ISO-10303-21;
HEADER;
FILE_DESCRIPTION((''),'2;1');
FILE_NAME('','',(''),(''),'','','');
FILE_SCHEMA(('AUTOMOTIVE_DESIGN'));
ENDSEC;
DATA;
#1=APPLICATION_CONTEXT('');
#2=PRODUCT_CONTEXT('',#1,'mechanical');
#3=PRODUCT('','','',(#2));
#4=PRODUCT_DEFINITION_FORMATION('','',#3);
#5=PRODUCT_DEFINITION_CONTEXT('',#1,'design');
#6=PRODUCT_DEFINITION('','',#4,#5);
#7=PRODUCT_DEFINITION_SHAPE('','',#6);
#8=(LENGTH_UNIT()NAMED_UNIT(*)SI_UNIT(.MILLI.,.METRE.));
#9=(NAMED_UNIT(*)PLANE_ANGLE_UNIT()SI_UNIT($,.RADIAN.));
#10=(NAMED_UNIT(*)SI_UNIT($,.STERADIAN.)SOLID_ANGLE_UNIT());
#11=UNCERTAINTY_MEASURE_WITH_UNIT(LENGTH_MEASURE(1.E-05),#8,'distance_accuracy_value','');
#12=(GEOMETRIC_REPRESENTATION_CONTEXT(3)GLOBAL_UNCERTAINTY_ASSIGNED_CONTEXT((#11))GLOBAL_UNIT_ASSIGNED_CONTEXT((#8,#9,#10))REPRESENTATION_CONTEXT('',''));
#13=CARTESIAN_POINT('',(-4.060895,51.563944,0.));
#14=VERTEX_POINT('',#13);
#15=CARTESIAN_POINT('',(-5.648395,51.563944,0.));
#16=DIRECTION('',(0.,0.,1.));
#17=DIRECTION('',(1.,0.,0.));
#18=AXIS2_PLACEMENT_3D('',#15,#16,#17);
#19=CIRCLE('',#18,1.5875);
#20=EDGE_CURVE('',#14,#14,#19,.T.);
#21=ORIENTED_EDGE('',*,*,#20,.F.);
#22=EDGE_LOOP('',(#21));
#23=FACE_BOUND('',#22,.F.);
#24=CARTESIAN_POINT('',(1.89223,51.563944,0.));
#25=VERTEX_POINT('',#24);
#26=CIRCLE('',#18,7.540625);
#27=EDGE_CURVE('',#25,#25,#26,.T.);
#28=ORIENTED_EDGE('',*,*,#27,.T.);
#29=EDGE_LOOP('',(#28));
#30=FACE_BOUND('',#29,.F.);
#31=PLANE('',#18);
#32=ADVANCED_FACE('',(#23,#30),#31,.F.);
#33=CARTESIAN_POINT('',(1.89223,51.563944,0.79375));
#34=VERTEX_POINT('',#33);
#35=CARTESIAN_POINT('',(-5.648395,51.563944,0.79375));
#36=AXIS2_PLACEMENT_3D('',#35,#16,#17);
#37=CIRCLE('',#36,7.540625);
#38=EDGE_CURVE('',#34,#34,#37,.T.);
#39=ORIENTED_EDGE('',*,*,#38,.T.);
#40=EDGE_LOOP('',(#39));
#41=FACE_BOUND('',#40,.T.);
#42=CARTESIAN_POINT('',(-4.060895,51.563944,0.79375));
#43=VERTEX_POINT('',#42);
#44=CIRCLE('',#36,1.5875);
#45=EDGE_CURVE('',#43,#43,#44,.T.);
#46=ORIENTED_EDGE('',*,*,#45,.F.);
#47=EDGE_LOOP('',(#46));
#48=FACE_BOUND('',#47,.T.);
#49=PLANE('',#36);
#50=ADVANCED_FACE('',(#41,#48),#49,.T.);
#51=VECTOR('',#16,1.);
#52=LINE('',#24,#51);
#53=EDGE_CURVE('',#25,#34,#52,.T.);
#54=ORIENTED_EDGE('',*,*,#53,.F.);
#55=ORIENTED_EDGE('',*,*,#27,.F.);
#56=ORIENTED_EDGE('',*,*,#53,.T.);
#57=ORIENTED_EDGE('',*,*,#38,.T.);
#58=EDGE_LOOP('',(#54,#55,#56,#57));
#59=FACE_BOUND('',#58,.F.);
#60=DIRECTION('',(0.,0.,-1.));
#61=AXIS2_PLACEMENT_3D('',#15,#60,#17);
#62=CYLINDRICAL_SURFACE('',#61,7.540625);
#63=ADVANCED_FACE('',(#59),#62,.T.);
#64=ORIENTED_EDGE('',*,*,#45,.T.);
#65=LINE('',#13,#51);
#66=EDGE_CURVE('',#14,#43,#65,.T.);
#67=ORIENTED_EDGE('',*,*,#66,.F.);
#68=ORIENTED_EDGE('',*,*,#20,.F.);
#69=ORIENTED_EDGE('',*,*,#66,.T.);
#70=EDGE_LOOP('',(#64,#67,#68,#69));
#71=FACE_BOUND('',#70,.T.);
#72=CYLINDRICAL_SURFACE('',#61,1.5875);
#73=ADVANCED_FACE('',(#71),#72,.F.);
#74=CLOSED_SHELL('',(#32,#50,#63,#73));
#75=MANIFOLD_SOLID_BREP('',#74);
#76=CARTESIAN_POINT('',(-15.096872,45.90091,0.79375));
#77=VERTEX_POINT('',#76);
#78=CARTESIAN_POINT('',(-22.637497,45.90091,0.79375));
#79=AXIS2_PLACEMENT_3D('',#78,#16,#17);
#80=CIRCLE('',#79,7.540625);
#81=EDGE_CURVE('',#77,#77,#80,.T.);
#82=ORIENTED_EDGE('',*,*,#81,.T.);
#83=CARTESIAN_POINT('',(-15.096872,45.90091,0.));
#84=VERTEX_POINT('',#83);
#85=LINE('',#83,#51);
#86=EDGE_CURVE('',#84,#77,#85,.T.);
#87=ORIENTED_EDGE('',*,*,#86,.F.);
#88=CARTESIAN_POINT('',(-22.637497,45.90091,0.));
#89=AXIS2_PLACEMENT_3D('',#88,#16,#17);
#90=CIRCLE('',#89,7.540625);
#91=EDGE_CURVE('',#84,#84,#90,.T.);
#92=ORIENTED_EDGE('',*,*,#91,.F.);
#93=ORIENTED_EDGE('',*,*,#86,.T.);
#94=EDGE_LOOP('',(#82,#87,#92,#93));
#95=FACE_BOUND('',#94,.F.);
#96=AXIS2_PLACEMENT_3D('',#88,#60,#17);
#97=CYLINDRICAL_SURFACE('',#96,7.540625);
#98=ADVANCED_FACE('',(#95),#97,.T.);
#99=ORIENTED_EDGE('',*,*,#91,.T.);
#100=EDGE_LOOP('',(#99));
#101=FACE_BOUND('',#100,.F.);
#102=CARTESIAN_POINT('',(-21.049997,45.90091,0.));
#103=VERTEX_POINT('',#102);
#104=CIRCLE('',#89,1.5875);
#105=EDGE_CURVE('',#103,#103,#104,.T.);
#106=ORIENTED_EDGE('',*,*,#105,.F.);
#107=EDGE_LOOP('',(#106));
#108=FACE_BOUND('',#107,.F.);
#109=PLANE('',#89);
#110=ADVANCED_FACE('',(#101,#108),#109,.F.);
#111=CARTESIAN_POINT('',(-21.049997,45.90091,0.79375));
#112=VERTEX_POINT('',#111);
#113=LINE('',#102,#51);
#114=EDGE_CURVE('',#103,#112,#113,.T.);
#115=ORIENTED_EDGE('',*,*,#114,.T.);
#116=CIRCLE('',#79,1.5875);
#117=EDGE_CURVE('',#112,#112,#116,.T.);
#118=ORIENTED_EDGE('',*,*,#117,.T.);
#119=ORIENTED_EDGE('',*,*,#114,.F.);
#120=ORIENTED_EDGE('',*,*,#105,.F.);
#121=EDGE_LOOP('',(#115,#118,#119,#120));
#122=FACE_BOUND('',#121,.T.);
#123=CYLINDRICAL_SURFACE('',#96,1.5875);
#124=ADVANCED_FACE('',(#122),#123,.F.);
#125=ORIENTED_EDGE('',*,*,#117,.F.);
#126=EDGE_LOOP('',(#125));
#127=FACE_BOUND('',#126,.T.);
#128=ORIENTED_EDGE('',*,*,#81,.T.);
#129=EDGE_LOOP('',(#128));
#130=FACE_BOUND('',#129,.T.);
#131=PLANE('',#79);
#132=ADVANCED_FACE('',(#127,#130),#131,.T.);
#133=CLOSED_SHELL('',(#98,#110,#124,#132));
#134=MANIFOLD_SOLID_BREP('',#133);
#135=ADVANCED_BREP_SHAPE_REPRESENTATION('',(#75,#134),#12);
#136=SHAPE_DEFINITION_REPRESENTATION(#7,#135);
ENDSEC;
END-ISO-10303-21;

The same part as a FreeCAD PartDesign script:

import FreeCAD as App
import Part
import Sketcher

V = App.Vector
Q = App.Units.Quantity

doc = App.newDocument("Part")
body = doc.addObject("PartDesign::Body", "Body")
body.AllowCompound = True

# Sketch on XY plane
sketch1 = body.newObject("Sketcher::SketchObject", "Sketch")
sketch1.AttachmentSupport = (doc.getObject("XY_Plane"), [""])
sketch1.MapMode = "FlatFace"
sketch1.addGeometry(Part.Circle(V(-22.637497, 45.90091, 0), V(0, 0, 1), 7.540625), False)
sketch1.addGeometry(Part.Circle(V(-22.637497, 45.90091, 0), V(0, 0, 1), 1.5875), False)
sketch1.addGeometry(Part.Circle(V(-5.648395, 51.563944, 0), V(0, 0, 1), 7.540625), False)
sketch1.addGeometry(Part.Circle(V(-5.648395, 51.563944, 0), V(0, 0, 1), 1.5875), False)
sketch1.addConstraint(Sketcher.Constraint("Coincident", 1, 3, 0, 3))
sketch1.addConstraint(Sketcher.Constraint("Coincident", 3, 3, 2, 3))
sketch1.addConstraint(Sketcher.Constraint("Equal", 0, 2))
sketch1.addConstraint(Sketcher.Constraint("Equal", 1, 3))
sketch1.addConstraint(Sketcher.Constraint("Diameter", 0, Q("0.59375 in")))
sketch1.addConstraint(Sketcher.Constraint("Diameter", 1, Q("0.125 in")))
sketch1.addConstraint(Sketcher.Constraint("DistanceX", 0, 3, 2, 3, Q("16.989102 mm")))
sketch1.addConstraint(Sketcher.Constraint("DistanceY", -1, 1, 0, 3, Q("45.90091 mm")))
sketch1.addConstraint(Sketcher.Constraint("DistanceX", 0, 3, -1, 1, Q("22.637497 mm")))
sketch1.addConstraint(Sketcher.Constraint("DistanceY", -1, 1, 2, 3, Q("51.563944 mm")))
pad1 = body.newObject("PartDesign::Pad", "Pad")
pad1.Profile = sketch1
pad1.Length = Q("0.03125 in")

doc.recompute()
